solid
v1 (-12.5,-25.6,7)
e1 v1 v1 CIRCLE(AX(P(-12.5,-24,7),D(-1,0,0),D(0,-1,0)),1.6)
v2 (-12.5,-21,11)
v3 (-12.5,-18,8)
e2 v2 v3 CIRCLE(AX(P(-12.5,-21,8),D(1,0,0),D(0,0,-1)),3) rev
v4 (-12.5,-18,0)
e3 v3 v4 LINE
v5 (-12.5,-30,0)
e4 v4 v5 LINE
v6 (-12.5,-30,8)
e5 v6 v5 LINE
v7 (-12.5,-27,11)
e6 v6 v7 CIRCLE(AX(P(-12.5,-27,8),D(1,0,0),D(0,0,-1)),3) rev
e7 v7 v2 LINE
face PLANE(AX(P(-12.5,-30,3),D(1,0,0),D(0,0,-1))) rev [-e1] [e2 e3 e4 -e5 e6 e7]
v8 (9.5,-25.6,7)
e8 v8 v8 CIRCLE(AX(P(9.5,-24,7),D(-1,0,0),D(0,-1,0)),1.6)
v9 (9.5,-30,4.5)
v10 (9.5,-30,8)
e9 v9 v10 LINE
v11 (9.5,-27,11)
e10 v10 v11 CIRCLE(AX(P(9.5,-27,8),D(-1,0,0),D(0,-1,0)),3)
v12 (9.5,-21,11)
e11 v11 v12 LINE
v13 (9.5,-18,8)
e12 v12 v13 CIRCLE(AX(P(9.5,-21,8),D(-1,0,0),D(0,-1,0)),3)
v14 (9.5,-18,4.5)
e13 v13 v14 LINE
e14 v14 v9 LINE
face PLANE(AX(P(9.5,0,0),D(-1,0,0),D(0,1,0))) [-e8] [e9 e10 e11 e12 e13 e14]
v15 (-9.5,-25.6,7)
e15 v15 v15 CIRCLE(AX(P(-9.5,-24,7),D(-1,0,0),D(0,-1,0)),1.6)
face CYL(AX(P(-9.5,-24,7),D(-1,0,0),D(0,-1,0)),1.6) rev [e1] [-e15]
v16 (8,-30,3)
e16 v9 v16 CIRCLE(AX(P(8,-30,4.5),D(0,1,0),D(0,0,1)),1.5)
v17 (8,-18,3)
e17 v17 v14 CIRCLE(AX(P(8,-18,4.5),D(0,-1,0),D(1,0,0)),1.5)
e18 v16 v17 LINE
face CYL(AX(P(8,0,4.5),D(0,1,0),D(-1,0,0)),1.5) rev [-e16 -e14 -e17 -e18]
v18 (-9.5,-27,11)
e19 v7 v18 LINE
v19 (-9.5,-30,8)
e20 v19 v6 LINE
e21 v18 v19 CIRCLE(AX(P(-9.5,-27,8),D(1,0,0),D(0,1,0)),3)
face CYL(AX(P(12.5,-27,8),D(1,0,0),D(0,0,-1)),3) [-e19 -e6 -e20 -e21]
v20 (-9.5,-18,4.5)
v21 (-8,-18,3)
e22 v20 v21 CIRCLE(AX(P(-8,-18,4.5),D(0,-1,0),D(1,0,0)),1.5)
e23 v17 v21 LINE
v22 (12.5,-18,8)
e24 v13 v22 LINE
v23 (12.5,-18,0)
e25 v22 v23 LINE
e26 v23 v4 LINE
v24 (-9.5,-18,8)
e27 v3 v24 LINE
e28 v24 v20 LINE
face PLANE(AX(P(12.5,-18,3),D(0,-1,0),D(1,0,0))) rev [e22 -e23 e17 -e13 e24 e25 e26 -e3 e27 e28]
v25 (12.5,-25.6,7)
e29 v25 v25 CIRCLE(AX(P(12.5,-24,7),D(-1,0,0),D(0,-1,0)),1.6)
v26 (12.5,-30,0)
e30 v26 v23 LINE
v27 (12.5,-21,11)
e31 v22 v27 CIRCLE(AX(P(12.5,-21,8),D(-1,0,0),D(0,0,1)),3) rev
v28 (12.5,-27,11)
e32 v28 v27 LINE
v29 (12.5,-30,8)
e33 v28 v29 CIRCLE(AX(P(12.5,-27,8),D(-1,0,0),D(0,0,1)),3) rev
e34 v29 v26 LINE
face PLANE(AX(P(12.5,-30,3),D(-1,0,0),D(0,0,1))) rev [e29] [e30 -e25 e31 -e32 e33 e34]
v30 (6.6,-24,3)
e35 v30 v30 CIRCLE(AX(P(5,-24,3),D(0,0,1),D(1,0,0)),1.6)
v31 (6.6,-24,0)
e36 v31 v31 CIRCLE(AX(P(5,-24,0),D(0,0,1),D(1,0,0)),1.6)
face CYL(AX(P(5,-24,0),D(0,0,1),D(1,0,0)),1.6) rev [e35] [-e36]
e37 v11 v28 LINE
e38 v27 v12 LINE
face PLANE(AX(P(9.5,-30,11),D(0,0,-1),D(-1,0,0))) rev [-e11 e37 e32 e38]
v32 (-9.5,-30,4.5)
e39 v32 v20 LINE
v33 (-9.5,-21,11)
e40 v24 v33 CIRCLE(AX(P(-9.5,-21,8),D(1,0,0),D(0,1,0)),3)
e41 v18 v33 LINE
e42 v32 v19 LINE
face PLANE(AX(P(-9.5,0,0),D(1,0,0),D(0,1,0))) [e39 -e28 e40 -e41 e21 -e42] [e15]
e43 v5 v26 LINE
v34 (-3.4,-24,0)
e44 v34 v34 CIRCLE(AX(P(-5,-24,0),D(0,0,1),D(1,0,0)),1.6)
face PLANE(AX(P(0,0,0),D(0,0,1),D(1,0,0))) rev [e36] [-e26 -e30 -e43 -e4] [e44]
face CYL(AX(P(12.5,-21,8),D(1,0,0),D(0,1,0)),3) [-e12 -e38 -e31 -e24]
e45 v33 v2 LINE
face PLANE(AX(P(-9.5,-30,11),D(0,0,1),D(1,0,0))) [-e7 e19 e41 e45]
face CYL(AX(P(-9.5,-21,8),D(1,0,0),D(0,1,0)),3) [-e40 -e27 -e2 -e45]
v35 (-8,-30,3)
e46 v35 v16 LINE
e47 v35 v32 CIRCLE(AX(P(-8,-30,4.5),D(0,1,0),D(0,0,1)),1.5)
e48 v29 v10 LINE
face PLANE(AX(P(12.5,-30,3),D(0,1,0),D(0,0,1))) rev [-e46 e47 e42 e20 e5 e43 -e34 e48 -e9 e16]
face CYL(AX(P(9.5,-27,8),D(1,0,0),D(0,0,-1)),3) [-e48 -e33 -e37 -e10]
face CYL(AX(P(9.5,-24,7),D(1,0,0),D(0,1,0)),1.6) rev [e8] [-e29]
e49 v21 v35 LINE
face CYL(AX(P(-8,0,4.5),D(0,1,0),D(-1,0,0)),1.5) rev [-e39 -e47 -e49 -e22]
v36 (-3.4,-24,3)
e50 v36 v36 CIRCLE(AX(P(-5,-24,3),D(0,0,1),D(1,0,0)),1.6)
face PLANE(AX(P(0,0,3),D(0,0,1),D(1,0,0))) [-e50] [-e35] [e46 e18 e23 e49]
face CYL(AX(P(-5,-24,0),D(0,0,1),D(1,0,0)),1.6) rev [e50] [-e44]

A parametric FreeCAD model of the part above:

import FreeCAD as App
import Part
import Sketcher


def edges_at(feature, points):
    """Names of the edges that pass closest to the given points."""
    edges = feature.Shape.Edges
    near = lambda p: min(range(len(edges)), key=lambda i: edges[i].distToShape(Part.Vertex(*p))[0])
    return sorted({f"Edge{near(p) + 1}" for p in points})

doc = App.newDocument("Part")
body = doc.addObject("PartDesign::Body", "Body")

sketch1 = body.newObject("Sketcher::SketchObject", "Sketch")
sketch1.AttachmentSupport = (doc.getObject("XY_Plane"), [""])
sketch1.MapMode = "FlatFace"
sketch1.addGeometry([
    Part.LineSegment(App.Vector(-12, -18, 0), App.Vector(-12, -30, 0)),
    Part.LineSegment(App.Vector(-12, -30, 0), App.Vector(12, -30, 0)),
    Part.LineSegment(App.Vector(12, -30, 0), App.Vector(12, -18, 0)),
    Part.LineSegment(App.Vector(12, -18, 0), App.Vector(-12, -18, 0)),
], False)
sketch1.addConstraint([
    Sketcher.Constraint("Coincident", 0, 2, 1, 1),
    Sketcher.Constraint("Coincident", 1, 2, 2, 1),
    Sketcher.Constraint("Coincident", 2, 2, 3, 1),
    Sketcher.Constraint("Coincident", 3, 2, 0, 1),
    Sketcher.Constraint("Vertical", 0),
    Sketcher.Constraint("Horizontal", 1),
    Sketcher.Constraint("Vertical", 2),
    Sketcher.Constraint("Horizontal", 3),
    Sketcher.Constraint("DistanceX", 1, 1, 1, 2, 25.0),
    Sketcher.Constraint("DistanceY", 0, 2, 0, 1, 12.0),
    Sketcher.Constraint("DistanceY", 0, 2, -1, 1, 30.0),
    Sketcher.Constraint("DistanceX", 0, 2, -1, 1, 12.5),
])
pad1 = body.newObject("PartDesign::Pad", "Pad")
pad1.Profile = sketch1
pad1.Length = 3

sketch2 = body.newObject("Sketcher::SketchObject", "Sketch001")
sketch2.AttachmentSupport = (doc.getObject("YZ_Plane"), [""])
sketch2.MapMode = "FlatFace"
sketch2.AttachmentOffset = App.Placement(App.Vector(0, 0, -12.5), App.Rotation())
sketch2.addGeometry([
    Part.LineSegment(App.Vector(-18, 3, 0), App.Vector(-30, 3, 0)),
    Part.LineSegment(App.Vector(-30, 3, 0), App.Vector(-30, 11, 0)),
    Part.LineSegment(App.Vector(-30, 11, 0), App.Vector(-18, 11, 0)),
    Part.LineSegment(App.Vector(-18, 11, 0), App.Vector(-18, 3, 0)),
], False)
sketch2.addConstraint([
    Sketcher.Constraint("Coincident", 0, 2, 1, 1),
    Sketcher.Constraint("Coincident", 1, 2, 2, 1),
    Sketcher.Constraint("Coincident", 2, 2, 3, 1),
    Sketcher.Constraint("Coincident", 3, 2, 0, 1),
    Sketcher.Constraint("Horizontal", 0),
    Sketcher.Constraint("Vertical", 1),
    Sketcher.Constraint("Horizontal", 2),
    Sketcher.Constraint("Vertical", 3),
    Sketcher.Constraint("DistanceX", 0, 2, 0, 1, 12.0),
    Sketcher.Constraint("DistanceY", 1, 1, 1, 2, 8.0),
    Sketcher.Constraint("DistanceX", 0, 2, -1, 1, 30.0),
    Sketcher.Constraint("DistanceY", -1, 1, 0, 2, 3.0),
])
pad2 = body.newObject("PartDesign::Pad", "Pad001")
pad2.Profile = sketch2
pad2.Length = 3
doc.recompute()

fillet = body.newObject("PartDesign::Fillet", "Fillet")
fillet.Base = (pad2, edges_at(pad2, [(-11, -18, 11), (-11, -30, 11)]))
fillet.Radius = 3
doc.recompute()

fillet2 = body.newObject("PartDesign::Fillet", "Fillet001")
fillet2.Base = (fillet, edges_at(fillet, [(-9.5, -24, 3)]))
fillet2.Radius = 1.5

sketch3 = body.newObject("Sketcher::SketchObject", "Sketch002")
sketch3.AttachmentSupport = (doc.getObject("YZ_Plane"), [""])
sketch3.MapMode = "FlatFace"
sketch3.AttachmentOffset = App.Placement(App.Vector(0, 0, -12.5), App.Rotation())
sketch3.addGeometry(Part.Circle(App.Vector(-24, 7, 0), App.Vector(0, 0, 1), 1.6), False)
sketch3.addConstraint([
    Sketcher.Constraint("Diameter", 0, 3.2),
    Sketcher.Constraint("DistanceX", 0, 3, -1, 1, 24.0),
    Sketcher.Constraint("DistanceY", -1, 1, 0, 3, 7.0),
])
pocket1 = body.newObject("PartDesign::Pocket", "Pocket")
pocket1.Profile = sketch3
pocket1.Length = 3
pocket1.Reversed = True
doc.recompute()

mirrored = body.newObject("PartDesign::Mirrored", "Mirrored")
mirrored.Originals = [pad2, pocket1]
mirrored.MirrorPlane = (doc.getObject("YZ_Plane"), [""])
body.Tip = mirrored
doc.recompute()

fillet3 = body.newObject("PartDesign::Fillet", "Fillet002")
fillet3.Base = (mirrored, edges_at(mirrored, [(11, -18, 11), (11, -30, 11)]))
fillet3.Radius = 3
doc.recompute()

fillet4 = body.newObject("PartDesign::Fillet", "Fillet003")
fillet4.Base = (fillet3, edges_at(fillet3, [(9.5, -24, 3)]))
fillet4.Radius = 1.5

sketch4 = body.newObject("Sketcher::SketchObject", "Sketch003")
sketch4.AttachmentSupport = (doc.getObject("XY_Plane"), [""])
sketch4.MapMode = "FlatFace"
sketch4.AttachmentOffset = App.Placement(App.Vector(0, 0, 3), App.Rotation())
sketch4.addGeometry([
    Part.Circle(App.Vector(5, -24, 0), App.Vector(0, 0, 1), 1.6),
    Part.Circle(App.Vector(-5, -24, 0), App.Vector(0, 0, 1), 1.6),
], False)
sketch4.addConstraint([
    Sketcher.Constraint("Equal", 0, 1),
    Sketcher.Constraint("Symmetric", 0, 3, 1, 3, -2),
    Sketcher.Constraint("Diameter", 0, 3.2),
    Sketcher.Constraint("DistanceX", -1, 1, 0, 3, 5.0),
    Sketcher.Constraint("DistanceY", 0, 3, -1, 1, 24.0),
])
pocket2 = body.newObject("PartDesign::Pocket", "Pocket001")
pocket2.Profile = sketch4
pocket2.Length = 3

doc.recompute()
